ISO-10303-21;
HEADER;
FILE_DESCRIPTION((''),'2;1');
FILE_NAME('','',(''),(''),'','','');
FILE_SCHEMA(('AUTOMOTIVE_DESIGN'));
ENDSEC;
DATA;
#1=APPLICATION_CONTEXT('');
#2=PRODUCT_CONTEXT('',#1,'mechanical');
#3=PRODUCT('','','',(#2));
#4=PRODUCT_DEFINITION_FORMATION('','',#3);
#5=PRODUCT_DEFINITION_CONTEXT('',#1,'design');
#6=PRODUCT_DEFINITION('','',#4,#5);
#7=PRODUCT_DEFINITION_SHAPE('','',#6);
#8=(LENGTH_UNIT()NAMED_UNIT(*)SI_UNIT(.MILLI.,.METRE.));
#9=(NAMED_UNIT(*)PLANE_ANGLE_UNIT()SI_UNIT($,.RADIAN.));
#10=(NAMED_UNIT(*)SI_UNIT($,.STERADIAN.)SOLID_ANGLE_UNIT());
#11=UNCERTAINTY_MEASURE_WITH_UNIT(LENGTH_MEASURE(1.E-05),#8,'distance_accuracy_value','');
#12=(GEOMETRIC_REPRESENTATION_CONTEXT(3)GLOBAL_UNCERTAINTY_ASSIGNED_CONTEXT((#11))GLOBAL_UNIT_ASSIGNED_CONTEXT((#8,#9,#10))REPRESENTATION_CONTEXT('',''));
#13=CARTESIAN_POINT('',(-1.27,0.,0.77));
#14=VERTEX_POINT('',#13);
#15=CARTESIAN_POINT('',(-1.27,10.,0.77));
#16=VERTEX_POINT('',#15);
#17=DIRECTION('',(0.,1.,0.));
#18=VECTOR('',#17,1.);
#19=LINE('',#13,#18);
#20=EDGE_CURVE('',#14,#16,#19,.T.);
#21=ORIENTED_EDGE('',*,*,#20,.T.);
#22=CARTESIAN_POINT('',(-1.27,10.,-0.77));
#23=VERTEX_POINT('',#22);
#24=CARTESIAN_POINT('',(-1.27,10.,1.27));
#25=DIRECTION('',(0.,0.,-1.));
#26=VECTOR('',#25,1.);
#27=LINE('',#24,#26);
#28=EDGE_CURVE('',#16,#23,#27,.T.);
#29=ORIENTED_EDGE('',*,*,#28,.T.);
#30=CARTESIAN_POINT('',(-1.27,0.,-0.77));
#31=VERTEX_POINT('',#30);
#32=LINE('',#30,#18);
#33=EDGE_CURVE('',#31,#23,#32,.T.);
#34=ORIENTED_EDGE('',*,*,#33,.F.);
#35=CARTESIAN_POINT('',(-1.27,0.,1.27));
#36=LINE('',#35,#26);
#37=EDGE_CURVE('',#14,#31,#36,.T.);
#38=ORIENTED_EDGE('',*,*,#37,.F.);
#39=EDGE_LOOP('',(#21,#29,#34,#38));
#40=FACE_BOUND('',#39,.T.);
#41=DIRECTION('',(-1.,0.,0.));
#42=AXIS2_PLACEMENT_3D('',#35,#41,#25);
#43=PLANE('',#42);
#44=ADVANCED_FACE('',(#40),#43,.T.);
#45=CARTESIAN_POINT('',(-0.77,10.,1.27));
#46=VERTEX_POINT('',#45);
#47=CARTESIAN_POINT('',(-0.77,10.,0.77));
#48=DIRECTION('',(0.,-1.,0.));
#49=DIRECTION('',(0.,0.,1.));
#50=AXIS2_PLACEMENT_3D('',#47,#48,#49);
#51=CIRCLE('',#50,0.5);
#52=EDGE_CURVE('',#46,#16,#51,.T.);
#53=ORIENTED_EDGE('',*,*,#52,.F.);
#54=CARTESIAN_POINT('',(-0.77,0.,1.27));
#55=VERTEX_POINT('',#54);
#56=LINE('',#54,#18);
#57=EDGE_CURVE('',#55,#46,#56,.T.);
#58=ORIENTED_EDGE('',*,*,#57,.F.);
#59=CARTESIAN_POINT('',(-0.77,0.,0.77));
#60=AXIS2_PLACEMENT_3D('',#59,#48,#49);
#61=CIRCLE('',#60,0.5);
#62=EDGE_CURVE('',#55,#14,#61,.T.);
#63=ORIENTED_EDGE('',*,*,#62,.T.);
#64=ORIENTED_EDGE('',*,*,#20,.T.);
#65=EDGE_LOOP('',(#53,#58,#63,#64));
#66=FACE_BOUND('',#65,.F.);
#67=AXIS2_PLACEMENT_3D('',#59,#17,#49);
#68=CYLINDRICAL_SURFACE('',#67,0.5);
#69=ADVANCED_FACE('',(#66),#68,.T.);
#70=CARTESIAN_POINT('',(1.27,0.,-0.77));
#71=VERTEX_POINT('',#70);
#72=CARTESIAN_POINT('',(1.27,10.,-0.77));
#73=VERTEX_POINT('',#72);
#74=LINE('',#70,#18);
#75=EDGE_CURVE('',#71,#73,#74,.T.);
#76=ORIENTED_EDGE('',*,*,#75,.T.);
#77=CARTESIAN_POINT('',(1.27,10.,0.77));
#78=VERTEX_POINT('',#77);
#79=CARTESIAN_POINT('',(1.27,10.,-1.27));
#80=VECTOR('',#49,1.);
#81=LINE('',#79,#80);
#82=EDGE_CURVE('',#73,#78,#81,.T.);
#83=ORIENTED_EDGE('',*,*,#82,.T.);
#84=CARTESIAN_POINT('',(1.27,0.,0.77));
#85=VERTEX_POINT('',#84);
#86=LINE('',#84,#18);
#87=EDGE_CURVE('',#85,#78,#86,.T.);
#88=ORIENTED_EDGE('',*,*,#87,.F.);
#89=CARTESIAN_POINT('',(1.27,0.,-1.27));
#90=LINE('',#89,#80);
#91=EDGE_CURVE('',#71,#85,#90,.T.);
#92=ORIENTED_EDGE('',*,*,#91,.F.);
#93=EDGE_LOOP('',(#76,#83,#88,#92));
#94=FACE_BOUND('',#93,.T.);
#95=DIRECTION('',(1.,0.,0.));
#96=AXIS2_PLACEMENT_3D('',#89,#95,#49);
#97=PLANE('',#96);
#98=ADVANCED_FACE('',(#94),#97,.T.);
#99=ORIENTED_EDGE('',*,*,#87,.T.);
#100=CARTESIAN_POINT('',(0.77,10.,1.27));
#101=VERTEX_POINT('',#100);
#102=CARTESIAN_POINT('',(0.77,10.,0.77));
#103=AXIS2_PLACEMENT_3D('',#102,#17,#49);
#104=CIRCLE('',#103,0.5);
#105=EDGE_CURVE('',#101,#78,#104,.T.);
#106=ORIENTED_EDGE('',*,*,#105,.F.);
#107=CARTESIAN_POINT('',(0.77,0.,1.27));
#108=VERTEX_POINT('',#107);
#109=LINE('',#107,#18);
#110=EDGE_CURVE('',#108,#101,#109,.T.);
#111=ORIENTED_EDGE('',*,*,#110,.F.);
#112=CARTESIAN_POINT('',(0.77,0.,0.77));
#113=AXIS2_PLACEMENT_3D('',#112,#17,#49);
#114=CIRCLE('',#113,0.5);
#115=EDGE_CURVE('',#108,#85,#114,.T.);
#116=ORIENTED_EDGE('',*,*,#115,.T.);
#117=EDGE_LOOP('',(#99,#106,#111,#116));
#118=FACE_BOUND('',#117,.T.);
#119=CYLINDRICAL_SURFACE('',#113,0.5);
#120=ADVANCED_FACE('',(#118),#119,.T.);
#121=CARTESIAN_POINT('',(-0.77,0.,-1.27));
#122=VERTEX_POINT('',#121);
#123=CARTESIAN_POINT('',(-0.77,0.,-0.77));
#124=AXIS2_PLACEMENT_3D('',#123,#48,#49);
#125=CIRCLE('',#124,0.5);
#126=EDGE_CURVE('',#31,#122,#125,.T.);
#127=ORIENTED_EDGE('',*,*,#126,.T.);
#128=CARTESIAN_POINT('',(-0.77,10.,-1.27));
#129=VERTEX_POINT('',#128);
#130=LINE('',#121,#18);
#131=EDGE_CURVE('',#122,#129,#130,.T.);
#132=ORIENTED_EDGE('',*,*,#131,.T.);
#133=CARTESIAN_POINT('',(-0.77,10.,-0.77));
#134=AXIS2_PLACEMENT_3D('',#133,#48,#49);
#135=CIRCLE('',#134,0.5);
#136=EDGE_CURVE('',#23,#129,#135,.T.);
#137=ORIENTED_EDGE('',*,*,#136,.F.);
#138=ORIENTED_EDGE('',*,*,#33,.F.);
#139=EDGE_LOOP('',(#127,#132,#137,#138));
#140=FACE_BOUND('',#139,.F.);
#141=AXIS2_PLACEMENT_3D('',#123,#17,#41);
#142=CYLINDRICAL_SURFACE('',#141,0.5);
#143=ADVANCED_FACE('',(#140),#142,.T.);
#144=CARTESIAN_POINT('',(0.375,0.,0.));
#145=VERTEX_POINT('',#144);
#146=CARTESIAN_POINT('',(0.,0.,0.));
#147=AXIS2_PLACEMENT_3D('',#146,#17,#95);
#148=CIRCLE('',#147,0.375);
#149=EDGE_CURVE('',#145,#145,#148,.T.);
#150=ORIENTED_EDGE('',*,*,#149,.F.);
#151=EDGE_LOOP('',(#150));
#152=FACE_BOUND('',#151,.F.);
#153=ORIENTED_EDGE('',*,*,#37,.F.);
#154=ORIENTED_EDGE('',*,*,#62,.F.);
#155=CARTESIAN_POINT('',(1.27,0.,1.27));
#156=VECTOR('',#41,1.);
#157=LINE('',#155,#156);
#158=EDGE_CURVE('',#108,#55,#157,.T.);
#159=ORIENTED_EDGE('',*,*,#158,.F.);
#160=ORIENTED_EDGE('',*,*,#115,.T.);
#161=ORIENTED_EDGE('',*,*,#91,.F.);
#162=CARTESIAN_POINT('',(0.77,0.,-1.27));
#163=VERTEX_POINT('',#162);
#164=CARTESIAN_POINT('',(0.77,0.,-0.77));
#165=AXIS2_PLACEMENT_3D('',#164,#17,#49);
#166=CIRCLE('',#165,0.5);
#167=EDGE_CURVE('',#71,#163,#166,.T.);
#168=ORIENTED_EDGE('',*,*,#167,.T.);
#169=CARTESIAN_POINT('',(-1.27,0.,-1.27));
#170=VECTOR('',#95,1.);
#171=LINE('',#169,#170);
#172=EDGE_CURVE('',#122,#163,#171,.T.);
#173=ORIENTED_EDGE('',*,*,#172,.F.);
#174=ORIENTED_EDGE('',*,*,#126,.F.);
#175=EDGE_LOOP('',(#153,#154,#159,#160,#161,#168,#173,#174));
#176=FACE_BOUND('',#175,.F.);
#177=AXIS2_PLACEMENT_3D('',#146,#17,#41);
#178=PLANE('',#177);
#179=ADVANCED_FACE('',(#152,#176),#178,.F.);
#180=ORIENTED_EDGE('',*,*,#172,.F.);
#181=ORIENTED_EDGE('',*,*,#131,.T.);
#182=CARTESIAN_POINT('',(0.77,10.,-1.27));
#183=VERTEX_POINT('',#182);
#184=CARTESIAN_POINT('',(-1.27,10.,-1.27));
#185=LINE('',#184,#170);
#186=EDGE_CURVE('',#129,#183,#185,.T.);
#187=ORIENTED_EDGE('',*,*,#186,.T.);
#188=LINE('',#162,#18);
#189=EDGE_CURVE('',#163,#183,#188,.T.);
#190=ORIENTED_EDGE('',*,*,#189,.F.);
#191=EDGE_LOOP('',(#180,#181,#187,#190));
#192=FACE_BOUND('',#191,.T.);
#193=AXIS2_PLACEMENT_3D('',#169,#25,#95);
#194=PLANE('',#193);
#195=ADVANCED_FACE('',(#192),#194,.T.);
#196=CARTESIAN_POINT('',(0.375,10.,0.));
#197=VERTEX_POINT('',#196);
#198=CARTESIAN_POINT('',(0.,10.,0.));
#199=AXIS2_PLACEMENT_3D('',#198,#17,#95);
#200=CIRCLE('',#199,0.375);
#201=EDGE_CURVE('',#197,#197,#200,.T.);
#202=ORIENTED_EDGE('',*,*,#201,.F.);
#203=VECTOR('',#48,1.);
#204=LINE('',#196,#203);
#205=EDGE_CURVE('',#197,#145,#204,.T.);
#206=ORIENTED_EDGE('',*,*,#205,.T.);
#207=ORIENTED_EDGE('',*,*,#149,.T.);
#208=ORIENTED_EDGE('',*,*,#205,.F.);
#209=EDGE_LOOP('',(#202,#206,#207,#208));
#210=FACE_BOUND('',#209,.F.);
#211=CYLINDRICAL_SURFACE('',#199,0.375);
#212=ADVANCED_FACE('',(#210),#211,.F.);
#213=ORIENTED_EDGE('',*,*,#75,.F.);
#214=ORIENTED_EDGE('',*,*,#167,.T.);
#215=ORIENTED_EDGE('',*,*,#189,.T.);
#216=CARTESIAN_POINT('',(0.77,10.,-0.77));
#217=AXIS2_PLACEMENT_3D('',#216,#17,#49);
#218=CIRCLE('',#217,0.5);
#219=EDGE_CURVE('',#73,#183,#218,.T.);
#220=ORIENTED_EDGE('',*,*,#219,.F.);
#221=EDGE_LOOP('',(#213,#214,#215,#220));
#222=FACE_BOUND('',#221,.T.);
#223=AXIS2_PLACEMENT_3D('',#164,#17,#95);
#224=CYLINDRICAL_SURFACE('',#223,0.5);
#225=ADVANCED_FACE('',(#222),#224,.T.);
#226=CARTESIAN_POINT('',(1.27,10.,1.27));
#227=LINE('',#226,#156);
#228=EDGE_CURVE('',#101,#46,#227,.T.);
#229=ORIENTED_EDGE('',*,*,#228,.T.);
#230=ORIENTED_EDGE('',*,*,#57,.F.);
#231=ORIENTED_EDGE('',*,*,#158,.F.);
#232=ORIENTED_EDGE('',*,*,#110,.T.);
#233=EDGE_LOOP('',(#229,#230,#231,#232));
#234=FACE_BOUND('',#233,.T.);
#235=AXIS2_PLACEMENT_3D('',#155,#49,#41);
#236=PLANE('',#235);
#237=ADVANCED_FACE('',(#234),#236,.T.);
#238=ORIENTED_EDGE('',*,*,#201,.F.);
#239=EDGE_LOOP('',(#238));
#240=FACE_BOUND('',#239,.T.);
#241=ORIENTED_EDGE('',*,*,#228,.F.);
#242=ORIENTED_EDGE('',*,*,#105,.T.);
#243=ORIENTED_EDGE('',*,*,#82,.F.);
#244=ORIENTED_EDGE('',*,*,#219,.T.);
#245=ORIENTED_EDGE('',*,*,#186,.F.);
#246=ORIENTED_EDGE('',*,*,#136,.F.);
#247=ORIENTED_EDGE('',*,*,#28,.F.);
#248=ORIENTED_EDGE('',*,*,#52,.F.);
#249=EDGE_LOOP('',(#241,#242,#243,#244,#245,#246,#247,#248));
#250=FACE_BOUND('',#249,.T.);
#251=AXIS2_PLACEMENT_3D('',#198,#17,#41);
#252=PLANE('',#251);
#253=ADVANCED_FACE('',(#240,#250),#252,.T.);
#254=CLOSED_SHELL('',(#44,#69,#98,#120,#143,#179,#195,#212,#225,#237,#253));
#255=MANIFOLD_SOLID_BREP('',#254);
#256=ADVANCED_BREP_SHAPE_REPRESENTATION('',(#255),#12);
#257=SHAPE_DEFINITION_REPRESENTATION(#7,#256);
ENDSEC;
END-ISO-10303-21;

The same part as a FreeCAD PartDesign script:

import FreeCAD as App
import Part
import Sketcher
Q = App.Units.Quantity


def edges_at(feature, points):
    """Names of the edges that pass closest to the given points."""
    edges = feature.Shape.Edges
    near = lambda p: min(range(len(edges)), key=lambda i: edges[i].distToShape(Part.Vertex(*p))[0])
    return sorted({f"Edge{near(p) + 1}" for p in points})

doc = App.newDocument("Part")
body = doc.addObject("PartDesign::Body", "Body")

# Sketch on XZ plane
sketch1 = body.newObject("Sketcher::SketchObject", "Sketch")
sketch1.AttachmentSupport = (doc.getObject("XZ_Plane"), [""])
sketch1.MapMode = "FlatFace"
sketch1.addGeometry([
    Part.LineSegment(App.Vector(-1.3, 1.3, 0), App.Vector(1.3, 1.3, 0)),
    Part.LineSegment(App.Vector(1.3, 1.3, 0), App.Vector(1.3, -1.3, 0)),
    Part.LineSegment(App.Vector(1.3, -1.3, 0), App.Vector(-1.3, -1.3, 0)),
    Part.LineSegment(App.Vector(-1.3, -1.3, 0), App.Vector(-1.3, 1.3, 0)),
], False)
sketch1.addConstraint([
    Sketcher.Constraint("Coincident", 0, 2, 1, 1),
    Sketcher.Constraint("Coincident", 1, 2, 2, 1),
    Sketcher.Constraint("Coincident", 2, 2, 3, 1),
    Sketcher.Constraint("Coincident", 3, 2, 0, 1),
    Sketcher.Constraint("Horizontal", 0),
    Sketcher.Constraint("Vertical", 1),
    Sketcher.Constraint("Horizontal", 2),
    Sketcher.Constraint("Vertical", 3),
    Sketcher.Constraint("Symmetric", 0, 2, 2, 2, -1, 1),
    Sketcher.Constraint("Equal", 2, 1),
    Sketcher.Constraint("DistanceX", 0, 1, 0, 2, Q("0.1 in")),
])
pad1 = body.newObject("PartDesign::Pad", "Pad")
pad1.Profile = sketch1
pad1.Length = Q("0.3937008 in")
pad1.Reversed = True

# Sketch on XZ plane
sketch2 = body.newObject("Sketcher::SketchObject", "Sketch001")
sketch2.AttachmentSupport = (doc.getObject("XZ_Plane"), [""])
sketch2.MapMode = "FlatFace"
sketch2.AttachmentOffset = App.Placement(App.Vector(0, 0, -0.3937008 * 25.4), App.Rotation())
sketch2.addGeometry(Part.Circle(App.Vector(0, 0, 0), App.Vector(0, 0, 1), 0.38), False)
sketch2.addConstraint([
    Sketcher.Constraint("Coincident", 0, 3, -1, 1),
    Sketcher.Constraint("Diameter", 0, 0.75),
])
pocket1 = body.newObject("PartDesign::Pocket", "Pocket")
pocket1.Profile = sketch2
pocket1.Length = Q("3.9370079 in")
pocket1.Reversed = True
doc.recompute()

fillet = body.newObject("PartDesign::Fillet", "Fillet")
fillet.Base = (pocket1, edges_at(pocket1, [
    (-1.27, 5, 1.27),
    (1.27, 5, 1.27),
    (1.27, 5, -1.27),
    (-1.27, 5, -1.27),
]))
fillet.Radius = 0.5

doc.recompute()
